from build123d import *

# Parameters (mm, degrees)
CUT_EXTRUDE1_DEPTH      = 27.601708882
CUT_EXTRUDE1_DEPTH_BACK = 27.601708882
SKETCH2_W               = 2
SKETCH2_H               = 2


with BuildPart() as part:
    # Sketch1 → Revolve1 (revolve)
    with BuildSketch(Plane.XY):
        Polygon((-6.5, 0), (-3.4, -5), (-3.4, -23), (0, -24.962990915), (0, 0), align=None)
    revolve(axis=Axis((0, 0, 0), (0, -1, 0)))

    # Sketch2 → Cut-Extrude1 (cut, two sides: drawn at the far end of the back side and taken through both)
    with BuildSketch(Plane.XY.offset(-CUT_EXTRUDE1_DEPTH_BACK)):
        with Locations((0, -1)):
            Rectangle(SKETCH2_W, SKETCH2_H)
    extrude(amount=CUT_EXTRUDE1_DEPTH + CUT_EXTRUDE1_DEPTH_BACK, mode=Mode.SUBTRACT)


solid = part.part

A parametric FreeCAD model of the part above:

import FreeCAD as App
import Part
import Sketcher
Q = App.Units.Quantity

doc = App.newDocument("Part")
body = doc.addObject("PartDesign::Body", "Body")

sketch1 = body.newObject("Sketcher::SketchObject", "Sketch")
sketch1.AttachmentSupport = (doc.getObject("XY_Plane"), [""])
sketch1.MapMode = "FlatFace"
sketch1.addGeometry([
    Part.LineSegment(App.Vector(-6.5, 0, 0), App.Vector(-3.4, -5, 0)),
    Part.LineSegment(App.Vector(-3.4, -5, 0), App.Vector(-3.4, -23, 0)),
    Part.LineSegment(App.Vector(-3.4, -23, 0), App.Vector(0, -25, 0)),
    Part.LineSegment(App.Vector(0, -25, 0), App.Vector(0, 0, 0)),
    Part.LineSegment(App.Vector(0, 0, 0), App.Vector(-6.5, 0, 0)),
], False)
sketch1.addConstraint([
    Sketcher.Constraint("Coincident", 0, 2, 1, 1),
    Sketcher.Constraint("Coincident", 1, 2, 2, 1),
    Sketcher.Constraint("Coincident", 2, 2, 3, 1),
    Sketcher.Constraint("Coincident", 3, 2, 4, 1),
    Sketcher.Constraint("Coincident", 4, 2, 0, 1),
    Sketcher.Constraint("Vertical", 1),
    Sketcher.Constraint("Vertical", 3),
    Sketcher.Constraint("Horizontal", 4),
    Sketcher.Constraint("Coincident", 3, 2, -1, 1),
    Sketcher.Constraint("DistanceY", 1, 2, 1, 1, 18.0),
    Sketcher.Constraint("Angle", 2, Q("-30 deg")),
    Sketcher.Constraint("DistanceX", 4, 2, 4, 1, 6.5),
    Sketcher.Constraint("DistanceY", 0, 2, -1, 1, 5.0),
    Sketcher.Constraint("DistanceX", 0, 2, -1, 1, 3.4),
])
revolution = body.newObject("PartDesign::Revolution", "Revolution")
revolution.Profile = sketch1
revolution.ReferenceAxis = (sketch1, ["V_Axis"])
revolution.Angle = 360

sketch2 = body.newObject("Sketcher::SketchObject", "Sketch001")
sketch2.AttachmentSupport = (doc.getObject("XY_Plane"), [""])
sketch2.MapMode = "FlatFace"
sketch2.addGeometry([
    Part.LineSegment(App.Vector(-1, 0, 0), App.Vector(-1, -2, 0)),
    Part.LineSegment(App.Vector(-1, -2, 0), App.Vector(1, -2, 0)),
    Part.LineSegment(App.Vector(1, -2, 0), App.Vector(1, 0, 0)),
    Part.LineSegment(App.Vector(1, 0, 0), App.Vector(-1, 0, 0)),
], False)
sketch2.addConstraint([
    Sketcher.Constraint("Coincident", 0, 2, 1, 1),
    Sketcher.Constraint("Coincident", 1, 2, 2, 1),
    Sketcher.Constraint("Coincident", 2, 2, 3, 1),
    Sketcher.Constraint("Coincident", 3, 2, 0, 1),
    Sketcher.Constraint("Vertical", 0),
    Sketcher.Constraint("Horizontal", 1),
    Sketcher.Constraint("Vertical", 2),
    Sketcher.Constraint("Horizontal", 3),
    Sketcher.Constraint("Symmetric", 2, 2, 3, 2, -1, 1),
    Sketcher.Constraint("Equal", 3, 0),
    Sketcher.Constraint("DistanceX", 1, 1, 1, 2, 2.0),
])
pocket1 = body.newObject("PartDesign::Pocket", "Pocket")
pocket1.Profile = sketch2
pocket1.Type = "ThroughAll"
pocket1.Midplane = True

doc.recompute()
